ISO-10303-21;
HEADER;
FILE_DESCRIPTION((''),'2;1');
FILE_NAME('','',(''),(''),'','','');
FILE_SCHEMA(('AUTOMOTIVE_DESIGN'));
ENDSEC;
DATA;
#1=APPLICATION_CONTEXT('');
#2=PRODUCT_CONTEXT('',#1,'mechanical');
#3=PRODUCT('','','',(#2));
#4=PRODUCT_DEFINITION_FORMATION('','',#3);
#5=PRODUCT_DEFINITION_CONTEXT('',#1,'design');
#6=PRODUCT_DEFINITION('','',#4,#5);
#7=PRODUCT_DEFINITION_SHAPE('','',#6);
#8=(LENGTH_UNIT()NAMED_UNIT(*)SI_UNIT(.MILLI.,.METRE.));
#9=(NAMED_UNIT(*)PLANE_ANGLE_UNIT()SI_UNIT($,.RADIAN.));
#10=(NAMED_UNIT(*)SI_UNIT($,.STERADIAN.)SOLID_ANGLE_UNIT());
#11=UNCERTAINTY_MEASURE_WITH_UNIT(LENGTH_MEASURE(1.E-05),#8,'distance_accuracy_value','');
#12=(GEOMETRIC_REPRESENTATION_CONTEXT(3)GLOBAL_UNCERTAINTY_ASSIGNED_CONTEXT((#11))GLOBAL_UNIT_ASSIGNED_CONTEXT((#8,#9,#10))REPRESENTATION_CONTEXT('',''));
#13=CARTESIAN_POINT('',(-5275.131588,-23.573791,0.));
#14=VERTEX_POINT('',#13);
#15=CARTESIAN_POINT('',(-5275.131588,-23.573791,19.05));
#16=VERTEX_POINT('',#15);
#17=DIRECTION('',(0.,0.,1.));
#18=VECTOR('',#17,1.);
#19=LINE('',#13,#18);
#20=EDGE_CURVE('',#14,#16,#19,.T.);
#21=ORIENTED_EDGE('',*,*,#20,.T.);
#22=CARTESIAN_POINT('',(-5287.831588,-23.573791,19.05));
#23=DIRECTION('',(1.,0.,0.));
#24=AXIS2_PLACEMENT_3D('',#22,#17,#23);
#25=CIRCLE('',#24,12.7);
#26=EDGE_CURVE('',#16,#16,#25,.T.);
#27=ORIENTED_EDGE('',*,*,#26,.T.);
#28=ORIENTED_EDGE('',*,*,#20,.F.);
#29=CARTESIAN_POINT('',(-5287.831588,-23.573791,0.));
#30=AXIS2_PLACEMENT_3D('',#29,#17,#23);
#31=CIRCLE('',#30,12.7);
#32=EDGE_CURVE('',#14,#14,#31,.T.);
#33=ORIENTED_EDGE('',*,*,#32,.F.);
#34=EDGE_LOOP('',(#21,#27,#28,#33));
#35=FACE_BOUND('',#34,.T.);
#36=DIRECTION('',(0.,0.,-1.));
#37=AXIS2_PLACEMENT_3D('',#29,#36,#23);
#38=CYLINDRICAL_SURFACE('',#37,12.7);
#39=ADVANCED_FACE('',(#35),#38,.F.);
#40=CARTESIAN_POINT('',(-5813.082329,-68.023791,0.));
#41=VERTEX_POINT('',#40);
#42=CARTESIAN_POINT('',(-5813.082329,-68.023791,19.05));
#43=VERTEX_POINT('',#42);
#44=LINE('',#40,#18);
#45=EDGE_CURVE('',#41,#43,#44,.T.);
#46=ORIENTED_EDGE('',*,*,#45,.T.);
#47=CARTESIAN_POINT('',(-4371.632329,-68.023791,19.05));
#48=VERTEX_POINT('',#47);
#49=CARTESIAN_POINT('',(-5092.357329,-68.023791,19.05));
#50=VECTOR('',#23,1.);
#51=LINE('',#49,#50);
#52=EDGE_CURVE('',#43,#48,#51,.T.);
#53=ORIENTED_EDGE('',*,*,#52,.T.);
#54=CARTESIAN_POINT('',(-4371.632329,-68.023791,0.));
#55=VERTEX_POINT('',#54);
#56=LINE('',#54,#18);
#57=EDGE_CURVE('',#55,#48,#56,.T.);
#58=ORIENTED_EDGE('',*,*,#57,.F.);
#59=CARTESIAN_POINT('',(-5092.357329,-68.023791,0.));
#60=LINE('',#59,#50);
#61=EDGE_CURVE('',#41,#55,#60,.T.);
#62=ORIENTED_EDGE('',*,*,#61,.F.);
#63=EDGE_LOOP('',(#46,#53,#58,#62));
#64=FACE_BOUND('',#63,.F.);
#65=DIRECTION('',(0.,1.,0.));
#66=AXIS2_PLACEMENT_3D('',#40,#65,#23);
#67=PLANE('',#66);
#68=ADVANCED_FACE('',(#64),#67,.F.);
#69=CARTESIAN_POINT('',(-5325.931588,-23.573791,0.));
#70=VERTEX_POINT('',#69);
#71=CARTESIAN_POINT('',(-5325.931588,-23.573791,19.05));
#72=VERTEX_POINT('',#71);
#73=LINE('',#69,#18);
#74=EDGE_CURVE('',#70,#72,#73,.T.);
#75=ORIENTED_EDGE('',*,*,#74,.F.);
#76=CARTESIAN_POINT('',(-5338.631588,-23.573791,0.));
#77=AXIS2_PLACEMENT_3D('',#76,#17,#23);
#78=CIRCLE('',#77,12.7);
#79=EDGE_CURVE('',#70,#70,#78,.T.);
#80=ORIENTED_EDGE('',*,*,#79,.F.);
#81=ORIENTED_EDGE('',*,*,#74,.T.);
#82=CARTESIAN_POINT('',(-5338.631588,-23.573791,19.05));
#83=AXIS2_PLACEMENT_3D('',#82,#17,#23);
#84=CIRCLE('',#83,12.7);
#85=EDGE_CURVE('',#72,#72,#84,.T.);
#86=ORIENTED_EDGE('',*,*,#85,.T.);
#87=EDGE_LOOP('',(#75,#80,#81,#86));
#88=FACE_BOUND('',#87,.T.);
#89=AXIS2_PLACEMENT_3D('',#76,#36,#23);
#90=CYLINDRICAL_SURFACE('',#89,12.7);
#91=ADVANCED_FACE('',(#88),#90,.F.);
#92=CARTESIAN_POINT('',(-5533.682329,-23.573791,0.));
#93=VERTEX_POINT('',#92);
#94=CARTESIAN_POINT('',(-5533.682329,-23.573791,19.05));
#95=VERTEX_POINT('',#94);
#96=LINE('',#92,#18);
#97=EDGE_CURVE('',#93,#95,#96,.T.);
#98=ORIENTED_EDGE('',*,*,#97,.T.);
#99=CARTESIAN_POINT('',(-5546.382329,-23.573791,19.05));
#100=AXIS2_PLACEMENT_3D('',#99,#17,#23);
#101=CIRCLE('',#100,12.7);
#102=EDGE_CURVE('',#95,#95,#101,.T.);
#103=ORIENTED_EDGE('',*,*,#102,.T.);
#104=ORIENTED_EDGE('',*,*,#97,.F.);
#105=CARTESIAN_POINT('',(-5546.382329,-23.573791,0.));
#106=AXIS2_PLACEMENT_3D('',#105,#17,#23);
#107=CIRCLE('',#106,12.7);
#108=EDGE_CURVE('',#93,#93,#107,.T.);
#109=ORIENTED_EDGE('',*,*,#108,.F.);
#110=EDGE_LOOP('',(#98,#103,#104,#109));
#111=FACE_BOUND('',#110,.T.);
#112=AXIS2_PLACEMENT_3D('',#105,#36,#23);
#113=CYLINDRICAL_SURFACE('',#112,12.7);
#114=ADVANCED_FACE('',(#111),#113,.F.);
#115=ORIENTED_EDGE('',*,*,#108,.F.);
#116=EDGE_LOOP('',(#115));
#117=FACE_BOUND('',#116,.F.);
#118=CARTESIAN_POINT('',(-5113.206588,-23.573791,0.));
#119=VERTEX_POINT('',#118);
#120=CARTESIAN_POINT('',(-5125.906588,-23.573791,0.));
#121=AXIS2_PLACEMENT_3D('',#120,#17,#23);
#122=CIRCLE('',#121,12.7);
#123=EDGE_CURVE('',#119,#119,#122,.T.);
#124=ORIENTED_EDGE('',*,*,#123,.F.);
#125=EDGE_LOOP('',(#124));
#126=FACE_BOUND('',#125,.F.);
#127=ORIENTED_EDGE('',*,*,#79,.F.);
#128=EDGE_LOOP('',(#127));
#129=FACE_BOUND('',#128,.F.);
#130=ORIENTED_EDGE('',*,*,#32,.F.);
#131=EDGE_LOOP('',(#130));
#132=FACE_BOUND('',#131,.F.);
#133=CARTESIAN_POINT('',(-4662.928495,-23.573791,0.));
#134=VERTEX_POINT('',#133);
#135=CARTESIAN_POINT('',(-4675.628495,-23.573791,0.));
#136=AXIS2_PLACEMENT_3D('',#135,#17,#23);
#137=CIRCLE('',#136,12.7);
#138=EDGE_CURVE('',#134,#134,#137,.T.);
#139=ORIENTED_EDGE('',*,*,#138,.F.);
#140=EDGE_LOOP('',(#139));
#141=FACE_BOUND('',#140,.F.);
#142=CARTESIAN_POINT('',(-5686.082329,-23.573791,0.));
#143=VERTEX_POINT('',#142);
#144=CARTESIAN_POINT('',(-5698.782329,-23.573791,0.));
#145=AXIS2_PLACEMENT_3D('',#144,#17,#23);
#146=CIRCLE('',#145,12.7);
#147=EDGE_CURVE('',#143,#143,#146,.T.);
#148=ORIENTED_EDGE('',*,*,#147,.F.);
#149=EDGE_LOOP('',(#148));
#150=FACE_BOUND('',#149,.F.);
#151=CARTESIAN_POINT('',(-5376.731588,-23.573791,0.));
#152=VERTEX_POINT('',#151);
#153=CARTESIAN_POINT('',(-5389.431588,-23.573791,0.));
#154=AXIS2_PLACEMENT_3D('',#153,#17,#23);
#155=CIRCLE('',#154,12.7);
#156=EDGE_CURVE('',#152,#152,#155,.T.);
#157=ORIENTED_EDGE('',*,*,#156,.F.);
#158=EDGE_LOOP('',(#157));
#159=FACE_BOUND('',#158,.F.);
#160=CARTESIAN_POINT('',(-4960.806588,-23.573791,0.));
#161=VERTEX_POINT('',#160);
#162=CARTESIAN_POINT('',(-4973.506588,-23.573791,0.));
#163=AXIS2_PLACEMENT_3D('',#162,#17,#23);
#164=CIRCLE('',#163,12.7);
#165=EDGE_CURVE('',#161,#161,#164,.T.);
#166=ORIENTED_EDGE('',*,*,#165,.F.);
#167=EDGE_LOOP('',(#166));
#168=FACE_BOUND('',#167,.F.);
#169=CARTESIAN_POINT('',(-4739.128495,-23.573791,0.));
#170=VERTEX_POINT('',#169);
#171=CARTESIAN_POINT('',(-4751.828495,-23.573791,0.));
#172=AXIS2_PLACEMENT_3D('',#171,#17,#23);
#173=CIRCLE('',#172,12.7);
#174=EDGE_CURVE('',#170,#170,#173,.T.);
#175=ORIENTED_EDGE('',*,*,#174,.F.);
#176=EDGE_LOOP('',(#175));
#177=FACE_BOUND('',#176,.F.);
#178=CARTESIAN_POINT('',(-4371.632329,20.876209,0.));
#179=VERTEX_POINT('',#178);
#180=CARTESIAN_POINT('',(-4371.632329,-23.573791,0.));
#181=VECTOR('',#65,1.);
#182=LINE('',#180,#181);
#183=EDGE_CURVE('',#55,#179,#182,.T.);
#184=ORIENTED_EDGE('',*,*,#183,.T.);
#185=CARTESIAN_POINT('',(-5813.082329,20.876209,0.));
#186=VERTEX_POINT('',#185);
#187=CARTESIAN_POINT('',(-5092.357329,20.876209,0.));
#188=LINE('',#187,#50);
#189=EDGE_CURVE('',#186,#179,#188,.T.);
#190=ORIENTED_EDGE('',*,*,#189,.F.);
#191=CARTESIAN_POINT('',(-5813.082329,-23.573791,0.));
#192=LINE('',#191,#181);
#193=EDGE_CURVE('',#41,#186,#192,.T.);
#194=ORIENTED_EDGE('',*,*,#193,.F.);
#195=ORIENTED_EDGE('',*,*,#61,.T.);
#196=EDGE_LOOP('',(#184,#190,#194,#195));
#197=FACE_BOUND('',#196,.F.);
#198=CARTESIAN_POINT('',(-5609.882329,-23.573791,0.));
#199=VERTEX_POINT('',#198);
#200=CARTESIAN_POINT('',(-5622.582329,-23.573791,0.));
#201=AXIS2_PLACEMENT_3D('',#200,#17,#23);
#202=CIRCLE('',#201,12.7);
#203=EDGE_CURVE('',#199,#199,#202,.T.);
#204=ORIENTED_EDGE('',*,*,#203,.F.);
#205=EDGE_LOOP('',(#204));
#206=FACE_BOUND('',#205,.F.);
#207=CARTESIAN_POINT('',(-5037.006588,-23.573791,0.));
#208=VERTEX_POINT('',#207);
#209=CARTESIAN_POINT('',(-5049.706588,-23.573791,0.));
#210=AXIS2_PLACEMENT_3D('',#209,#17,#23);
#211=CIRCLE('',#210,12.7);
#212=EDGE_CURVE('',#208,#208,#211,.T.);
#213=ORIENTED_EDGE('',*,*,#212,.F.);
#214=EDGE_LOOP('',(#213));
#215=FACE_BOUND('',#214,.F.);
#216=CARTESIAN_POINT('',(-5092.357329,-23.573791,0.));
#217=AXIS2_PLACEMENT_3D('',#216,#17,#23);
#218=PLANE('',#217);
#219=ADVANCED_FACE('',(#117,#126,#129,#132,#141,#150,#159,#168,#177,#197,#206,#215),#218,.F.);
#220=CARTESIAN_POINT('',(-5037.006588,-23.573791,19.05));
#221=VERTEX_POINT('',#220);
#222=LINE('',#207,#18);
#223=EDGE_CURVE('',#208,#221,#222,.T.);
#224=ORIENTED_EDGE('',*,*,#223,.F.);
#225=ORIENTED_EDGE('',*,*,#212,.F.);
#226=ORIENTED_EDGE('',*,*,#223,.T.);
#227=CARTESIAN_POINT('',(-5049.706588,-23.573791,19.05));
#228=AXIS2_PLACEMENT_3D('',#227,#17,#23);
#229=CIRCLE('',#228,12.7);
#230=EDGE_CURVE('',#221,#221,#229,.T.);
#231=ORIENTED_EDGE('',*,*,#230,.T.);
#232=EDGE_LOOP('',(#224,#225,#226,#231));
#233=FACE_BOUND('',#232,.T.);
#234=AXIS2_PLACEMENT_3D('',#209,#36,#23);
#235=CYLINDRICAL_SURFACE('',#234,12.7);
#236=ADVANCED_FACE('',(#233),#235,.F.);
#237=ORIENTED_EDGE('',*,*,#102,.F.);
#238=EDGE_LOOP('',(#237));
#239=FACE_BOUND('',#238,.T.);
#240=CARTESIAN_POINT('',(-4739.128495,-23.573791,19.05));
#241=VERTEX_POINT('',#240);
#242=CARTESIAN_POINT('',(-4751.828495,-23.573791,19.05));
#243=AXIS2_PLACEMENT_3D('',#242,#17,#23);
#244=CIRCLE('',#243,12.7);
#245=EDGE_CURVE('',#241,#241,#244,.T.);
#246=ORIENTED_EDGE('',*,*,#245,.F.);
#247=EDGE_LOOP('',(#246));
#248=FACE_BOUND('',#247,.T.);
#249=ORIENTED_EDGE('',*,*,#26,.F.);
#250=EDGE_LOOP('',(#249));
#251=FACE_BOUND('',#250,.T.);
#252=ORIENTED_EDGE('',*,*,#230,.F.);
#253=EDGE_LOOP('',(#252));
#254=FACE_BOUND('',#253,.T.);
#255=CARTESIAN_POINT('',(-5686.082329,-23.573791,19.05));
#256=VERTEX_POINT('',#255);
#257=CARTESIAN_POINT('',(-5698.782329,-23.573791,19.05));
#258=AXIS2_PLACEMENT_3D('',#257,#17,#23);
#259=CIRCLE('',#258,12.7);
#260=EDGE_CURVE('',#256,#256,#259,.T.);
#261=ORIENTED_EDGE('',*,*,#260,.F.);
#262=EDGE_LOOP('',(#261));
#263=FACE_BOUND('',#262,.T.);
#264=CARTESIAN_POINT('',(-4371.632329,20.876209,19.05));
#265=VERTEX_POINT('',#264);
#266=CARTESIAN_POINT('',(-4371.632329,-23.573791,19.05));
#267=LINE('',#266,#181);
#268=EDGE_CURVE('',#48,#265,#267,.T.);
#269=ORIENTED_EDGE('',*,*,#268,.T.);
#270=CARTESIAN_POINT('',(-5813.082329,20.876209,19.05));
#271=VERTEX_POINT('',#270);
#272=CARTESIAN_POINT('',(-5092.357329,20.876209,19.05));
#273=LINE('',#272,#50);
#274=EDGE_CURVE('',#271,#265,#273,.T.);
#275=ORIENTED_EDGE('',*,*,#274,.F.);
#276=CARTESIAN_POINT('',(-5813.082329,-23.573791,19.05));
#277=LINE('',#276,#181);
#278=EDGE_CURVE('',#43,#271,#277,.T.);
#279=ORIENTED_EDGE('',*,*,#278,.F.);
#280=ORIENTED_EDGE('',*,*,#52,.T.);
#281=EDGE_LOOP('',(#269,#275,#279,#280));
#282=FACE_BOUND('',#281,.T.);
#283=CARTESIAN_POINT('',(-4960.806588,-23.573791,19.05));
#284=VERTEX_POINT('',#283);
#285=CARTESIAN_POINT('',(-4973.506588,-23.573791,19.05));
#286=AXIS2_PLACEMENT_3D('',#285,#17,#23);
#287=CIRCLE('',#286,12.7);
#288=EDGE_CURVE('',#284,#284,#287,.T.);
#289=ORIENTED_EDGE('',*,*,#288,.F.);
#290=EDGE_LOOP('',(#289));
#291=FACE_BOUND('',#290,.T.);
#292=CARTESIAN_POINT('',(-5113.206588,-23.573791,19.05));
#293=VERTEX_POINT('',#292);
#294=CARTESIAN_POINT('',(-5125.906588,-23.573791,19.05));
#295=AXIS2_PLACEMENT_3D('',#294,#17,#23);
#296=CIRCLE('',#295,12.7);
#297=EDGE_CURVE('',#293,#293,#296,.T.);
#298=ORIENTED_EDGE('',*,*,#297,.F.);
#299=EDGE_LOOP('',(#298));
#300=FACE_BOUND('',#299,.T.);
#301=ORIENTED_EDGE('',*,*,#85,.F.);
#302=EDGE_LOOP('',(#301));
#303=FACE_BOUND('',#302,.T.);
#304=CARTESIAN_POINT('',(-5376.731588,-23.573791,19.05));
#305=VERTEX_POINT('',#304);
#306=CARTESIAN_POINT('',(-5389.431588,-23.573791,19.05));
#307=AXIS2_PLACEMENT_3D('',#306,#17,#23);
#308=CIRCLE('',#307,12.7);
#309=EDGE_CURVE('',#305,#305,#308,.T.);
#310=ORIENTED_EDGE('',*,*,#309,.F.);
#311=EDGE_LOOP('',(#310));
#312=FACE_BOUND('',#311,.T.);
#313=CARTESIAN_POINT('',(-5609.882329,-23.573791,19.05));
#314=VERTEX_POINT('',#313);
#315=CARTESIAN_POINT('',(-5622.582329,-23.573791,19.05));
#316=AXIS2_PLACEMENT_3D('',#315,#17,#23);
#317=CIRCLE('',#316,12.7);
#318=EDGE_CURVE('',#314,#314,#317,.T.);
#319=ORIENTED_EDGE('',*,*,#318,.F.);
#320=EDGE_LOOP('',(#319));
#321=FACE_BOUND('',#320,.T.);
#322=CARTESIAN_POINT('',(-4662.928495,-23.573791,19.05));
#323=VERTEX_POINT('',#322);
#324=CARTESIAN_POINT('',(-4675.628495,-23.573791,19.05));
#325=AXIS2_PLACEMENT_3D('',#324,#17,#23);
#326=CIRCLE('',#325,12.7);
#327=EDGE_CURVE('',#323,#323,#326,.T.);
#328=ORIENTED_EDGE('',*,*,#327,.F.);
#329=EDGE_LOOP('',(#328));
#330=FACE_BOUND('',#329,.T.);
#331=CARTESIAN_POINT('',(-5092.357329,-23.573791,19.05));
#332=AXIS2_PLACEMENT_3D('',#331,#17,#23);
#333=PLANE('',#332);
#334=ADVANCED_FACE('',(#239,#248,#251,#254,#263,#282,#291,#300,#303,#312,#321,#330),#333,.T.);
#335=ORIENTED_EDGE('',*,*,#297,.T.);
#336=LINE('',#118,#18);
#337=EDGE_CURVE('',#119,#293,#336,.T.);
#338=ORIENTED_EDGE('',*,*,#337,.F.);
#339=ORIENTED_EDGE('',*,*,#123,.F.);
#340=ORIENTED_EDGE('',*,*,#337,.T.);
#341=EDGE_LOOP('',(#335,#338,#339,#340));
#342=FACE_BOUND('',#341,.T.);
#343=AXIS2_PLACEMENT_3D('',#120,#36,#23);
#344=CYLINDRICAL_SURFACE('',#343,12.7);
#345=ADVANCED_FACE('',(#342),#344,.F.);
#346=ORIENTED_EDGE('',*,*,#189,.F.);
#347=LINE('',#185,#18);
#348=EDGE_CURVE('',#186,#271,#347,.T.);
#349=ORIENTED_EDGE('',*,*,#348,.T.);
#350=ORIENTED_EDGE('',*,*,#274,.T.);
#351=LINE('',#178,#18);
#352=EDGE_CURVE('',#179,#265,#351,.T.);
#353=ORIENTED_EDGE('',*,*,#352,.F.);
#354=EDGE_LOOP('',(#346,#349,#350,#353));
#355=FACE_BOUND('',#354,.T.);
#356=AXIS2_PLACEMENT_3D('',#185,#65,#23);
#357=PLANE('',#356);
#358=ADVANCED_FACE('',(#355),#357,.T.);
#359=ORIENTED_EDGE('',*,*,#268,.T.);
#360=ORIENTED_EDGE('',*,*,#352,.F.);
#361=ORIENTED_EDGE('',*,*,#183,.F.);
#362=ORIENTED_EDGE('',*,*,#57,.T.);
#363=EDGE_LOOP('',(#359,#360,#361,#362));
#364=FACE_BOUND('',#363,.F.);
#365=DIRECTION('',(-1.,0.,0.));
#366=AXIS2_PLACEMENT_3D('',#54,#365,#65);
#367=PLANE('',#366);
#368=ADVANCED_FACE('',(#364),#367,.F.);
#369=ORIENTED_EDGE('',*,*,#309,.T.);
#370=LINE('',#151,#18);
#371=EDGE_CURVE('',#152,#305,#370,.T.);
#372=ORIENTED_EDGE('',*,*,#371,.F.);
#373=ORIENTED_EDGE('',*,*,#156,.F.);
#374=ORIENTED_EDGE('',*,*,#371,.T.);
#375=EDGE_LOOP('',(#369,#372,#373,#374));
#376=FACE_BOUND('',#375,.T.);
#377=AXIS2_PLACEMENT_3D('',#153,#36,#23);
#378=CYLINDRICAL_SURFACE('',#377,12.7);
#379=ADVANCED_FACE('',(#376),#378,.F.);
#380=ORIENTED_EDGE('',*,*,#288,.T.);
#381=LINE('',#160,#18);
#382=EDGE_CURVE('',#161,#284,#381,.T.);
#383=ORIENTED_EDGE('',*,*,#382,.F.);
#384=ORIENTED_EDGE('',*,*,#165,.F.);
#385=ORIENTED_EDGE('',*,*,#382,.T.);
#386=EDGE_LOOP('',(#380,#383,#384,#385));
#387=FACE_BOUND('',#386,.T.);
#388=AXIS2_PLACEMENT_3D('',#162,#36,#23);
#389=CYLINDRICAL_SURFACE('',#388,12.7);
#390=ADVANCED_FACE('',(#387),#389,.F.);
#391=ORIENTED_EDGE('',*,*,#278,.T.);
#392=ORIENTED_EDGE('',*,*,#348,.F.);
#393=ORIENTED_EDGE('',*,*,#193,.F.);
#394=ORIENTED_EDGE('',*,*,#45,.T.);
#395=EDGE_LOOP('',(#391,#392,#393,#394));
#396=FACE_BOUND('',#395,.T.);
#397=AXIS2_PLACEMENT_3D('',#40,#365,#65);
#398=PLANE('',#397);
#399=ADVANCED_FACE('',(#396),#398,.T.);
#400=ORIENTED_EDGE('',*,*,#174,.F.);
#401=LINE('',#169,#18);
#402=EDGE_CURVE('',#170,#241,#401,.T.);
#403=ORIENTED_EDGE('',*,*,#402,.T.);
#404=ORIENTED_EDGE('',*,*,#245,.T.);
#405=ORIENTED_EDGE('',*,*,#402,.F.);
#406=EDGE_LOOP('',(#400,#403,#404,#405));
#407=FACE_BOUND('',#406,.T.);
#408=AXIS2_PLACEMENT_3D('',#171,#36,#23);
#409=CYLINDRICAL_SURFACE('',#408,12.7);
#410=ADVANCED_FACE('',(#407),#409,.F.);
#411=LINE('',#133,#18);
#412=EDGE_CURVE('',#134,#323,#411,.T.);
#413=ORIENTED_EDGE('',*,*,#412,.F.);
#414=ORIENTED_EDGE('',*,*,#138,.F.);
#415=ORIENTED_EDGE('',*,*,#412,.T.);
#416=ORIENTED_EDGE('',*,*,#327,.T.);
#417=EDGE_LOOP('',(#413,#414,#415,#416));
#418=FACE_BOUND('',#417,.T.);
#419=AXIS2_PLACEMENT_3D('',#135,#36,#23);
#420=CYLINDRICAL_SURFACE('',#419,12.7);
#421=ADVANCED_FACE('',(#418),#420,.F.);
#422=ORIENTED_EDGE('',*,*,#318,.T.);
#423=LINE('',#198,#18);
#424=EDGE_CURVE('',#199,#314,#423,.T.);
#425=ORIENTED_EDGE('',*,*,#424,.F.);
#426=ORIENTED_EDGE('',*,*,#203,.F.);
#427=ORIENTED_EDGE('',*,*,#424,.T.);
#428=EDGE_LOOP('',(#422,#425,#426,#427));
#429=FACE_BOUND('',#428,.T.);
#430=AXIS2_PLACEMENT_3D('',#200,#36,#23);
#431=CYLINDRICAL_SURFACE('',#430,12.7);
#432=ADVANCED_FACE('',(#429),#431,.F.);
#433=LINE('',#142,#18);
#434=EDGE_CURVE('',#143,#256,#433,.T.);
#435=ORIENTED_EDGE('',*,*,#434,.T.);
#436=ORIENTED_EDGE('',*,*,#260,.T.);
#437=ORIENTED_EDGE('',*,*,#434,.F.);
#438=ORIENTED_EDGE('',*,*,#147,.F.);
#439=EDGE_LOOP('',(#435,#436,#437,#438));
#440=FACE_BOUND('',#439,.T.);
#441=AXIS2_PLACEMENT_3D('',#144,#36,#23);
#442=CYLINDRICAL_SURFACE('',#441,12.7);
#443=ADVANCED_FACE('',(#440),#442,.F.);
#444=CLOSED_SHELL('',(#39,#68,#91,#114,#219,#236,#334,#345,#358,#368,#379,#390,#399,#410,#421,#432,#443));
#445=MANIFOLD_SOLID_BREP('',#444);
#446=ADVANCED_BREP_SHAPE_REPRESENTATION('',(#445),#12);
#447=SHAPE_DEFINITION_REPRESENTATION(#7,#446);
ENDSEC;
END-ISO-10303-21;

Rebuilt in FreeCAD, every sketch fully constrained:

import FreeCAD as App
import Part
import Sketcher

V = App.Vector
Q = App.Units.Quantity


def add_polygon(sketch, points):
    """Adds a closed chain of lines whose ends are joined by coincident constraints."""
    first, n = sketch.GeometryCount, len(points)
    for a, b in zip(points, points[1:] + points[:1]):
        sketch.addGeometry(Part.LineSegment(App.Vector(*a, 0), App.Vector(*b, 0)), False)
    for i in range(n):
        sketch.addConstraint(Sketcher.Constraint("Coincident", first + i, 2, first + (i + 1) % n, 1))

doc = App.newDocument("Part")
params = doc.addObject("Spreadsheet::Sheet", "Params")
for row, (alias, value) in enumerate([
    ("sketch1_diameter", "1 in"),
    ("sketch1_height", "3.5 in"),
    ("sketch1_width", "56.75 in"),
    ("pad1_length", "0.75 in"),
], start=1):
    params.set(f"A{row}", alias)
    params.set(f"B{row}", "=" + value)
    params.setAlias(f"B{row}", alias)

body = doc.addObject("PartDesign::Body", "Body")

sketch1 = body.newObject("Sketcher::SketchObject", "Sketch")
sketch1.AttachmentSupport = (doc.getObject("XY_Plane"), [""])
sketch1.MapMode = "FlatFace"
add_polygon(sketch1, [(-5813, 21), (-5813, -68), (-4372, -68), (-4372, 21)])
sketch1.addGeometry(Part.Circle(V(-5699, -24, 0), V(0, 0, 1), 13), False)
sketch1.addGeometry(Part.Circle(V(-5623, -24, 0), V(0, 0, 1), 13), False)
sketch1.addGeometry(Part.Circle(V(-5546, -24, 0), V(0, 0, 1), 13), False)
sketch1.addGeometry(Part.Circle(V(-5389, -24, 0), V(0, 0, 1), 13), False)
sketch1.addGeometry(Part.Circle(V(-5339, -24, 0), V(0, 0, 1), 13), False)
sketch1.addGeometry(Part.Circle(V(-5288, -24, 0), V(0, 0, 1), 13), False)
sketch1.addGeometry(Part.Circle(V(-5126, -24, 0), V(0, 0, 1), 13), False)
sketch1.addGeometry(Part.Circle(V(-5050, -24, 0), V(0, 0, 1), 13), False)
sketch1.addGeometry(Part.Circle(V(-4974, -24, 0), V(0, 0, 1), 13), False)
sketch1.addGeometry(Part.Circle(V(-4752, -24, 0), V(0, 0, 1), 13), False)
sketch1.addGeometry(Part.Circle(V(-4676, -24, 0), V(0, 0, 1), 13), False)
sketch1.addConstraint([
    Sketcher.Constraint("Vertical", 0),
    Sketcher.Constraint("Horizontal", 1),
    Sketcher.Constraint("Vertical", 2),
    Sketcher.Constraint("Horizontal", 3),
    Sketcher.Constraint("Equal", 4, 5),
    Sketcher.Constraint("Equal", 5, 6),
    Sketcher.Constraint("Equal", 6, 7),
    Sketcher.Constraint("Equal", 7, 8),
    Sketcher.Constraint("Equal", 8, 9),
    Sketcher.Constraint("Equal", 9, 10),
    Sketcher.Constraint("Equal", 10, 11),
    Sketcher.Constraint("Equal", 11, 12),
    Sketcher.Constraint("Equal", 12, 13),
    Sketcher.Constraint("Equal", 13, 14),
    Sketcher.Constraint("Horizontal", 4, 3, 5, 3),
    Sketcher.Constraint("Horizontal", 5, 3, 6, 3),
    Sketcher.Constraint("Horizontal", 6, 3, 7, 3),
    Sketcher.Constraint("Horizontal", 7, 3, 8, 3),
    Sketcher.Constraint("Horizontal", 8, 3, 9, 3),
    Sketcher.Constraint("Horizontal", 9, 3, 10, 3),
    Sketcher.Constraint("Horizontal", 10, 3, 11, 3),
    Sketcher.Constraint("Horizontal", 11, 3, 12, 3),
    Sketcher.Constraint("Horizontal", 12, 3, 13, 3),
    Sketcher.Constraint("Horizontal", 13, 3, 14, 3),
    Sketcher.Constraint("Diameter", 4, Q("1 in")),
    Sketcher.Constraint("DistanceY", 0, 2, 0, 1, Q("3.5 in")),
    Sketcher.Constraint("DistanceX", 4, 3, 5, 3, Q("3 in")),
    Sketcher.Constraint("DistanceX", 5, 3, 6, 3, Q("3 in")),
    Sketcher.Constraint("DistanceX", 7, 3, 8, 3, Q("2 in")),
    Sketcher.Constraint("DistanceX", 8, 3, 9, 3, Q("2 in")),
    Sketcher.Constraint("DistanceX", 10, 3, 11, 3, Q("3 in")),
    Sketcher.Constraint("DistanceX", 11, 3, 12, 3, Q("3 in")),
    Sketcher.Constraint("DistanceX", 13, 3, 14, 3, Q("3 in")),
    Sketcher.Constraint("DistanceX", 1, 1, 1, 2, Q("56.75 in")),
    Sketcher.Constraint("DistanceX", 0, 2, 4, 3, Q("4.5 in")),
    Sketcher.Constraint("DistanceY", 0, 2, 4, 3, Q("1.75 in")),
    Sketcher.Constraint("DistanceX", 9, 3, 10, 3, Q("6.375 in")),
    Sketcher.Constraint("DistanceX", 4, 3, -1, 1, 5698.782329),
    Sketcher.Constraint("DistanceY", 4, 3, -1, 1, 23.573791),
    Sketcher.Constraint("DistanceX", 7, 3, -1, 1, 5389.431588),
    Sketcher.Constraint("DistanceX", 13, 3, -1, 1, 4751.828495),
])
sketch1.setExpression("Constraints[28]", "Params.sketch1_diameter")
sketch1.setExpression("Constraints[29]", "Params.sketch1_height")
sketch1.setExpression("Constraints[37]", "Params.sketch1_width")
pad1 = body.newObject("PartDesign::Pad", "Pad")
pad1.Profile = sketch1
pad1.setExpression("Length", "Params.pad1_length")

doc.recompute()
